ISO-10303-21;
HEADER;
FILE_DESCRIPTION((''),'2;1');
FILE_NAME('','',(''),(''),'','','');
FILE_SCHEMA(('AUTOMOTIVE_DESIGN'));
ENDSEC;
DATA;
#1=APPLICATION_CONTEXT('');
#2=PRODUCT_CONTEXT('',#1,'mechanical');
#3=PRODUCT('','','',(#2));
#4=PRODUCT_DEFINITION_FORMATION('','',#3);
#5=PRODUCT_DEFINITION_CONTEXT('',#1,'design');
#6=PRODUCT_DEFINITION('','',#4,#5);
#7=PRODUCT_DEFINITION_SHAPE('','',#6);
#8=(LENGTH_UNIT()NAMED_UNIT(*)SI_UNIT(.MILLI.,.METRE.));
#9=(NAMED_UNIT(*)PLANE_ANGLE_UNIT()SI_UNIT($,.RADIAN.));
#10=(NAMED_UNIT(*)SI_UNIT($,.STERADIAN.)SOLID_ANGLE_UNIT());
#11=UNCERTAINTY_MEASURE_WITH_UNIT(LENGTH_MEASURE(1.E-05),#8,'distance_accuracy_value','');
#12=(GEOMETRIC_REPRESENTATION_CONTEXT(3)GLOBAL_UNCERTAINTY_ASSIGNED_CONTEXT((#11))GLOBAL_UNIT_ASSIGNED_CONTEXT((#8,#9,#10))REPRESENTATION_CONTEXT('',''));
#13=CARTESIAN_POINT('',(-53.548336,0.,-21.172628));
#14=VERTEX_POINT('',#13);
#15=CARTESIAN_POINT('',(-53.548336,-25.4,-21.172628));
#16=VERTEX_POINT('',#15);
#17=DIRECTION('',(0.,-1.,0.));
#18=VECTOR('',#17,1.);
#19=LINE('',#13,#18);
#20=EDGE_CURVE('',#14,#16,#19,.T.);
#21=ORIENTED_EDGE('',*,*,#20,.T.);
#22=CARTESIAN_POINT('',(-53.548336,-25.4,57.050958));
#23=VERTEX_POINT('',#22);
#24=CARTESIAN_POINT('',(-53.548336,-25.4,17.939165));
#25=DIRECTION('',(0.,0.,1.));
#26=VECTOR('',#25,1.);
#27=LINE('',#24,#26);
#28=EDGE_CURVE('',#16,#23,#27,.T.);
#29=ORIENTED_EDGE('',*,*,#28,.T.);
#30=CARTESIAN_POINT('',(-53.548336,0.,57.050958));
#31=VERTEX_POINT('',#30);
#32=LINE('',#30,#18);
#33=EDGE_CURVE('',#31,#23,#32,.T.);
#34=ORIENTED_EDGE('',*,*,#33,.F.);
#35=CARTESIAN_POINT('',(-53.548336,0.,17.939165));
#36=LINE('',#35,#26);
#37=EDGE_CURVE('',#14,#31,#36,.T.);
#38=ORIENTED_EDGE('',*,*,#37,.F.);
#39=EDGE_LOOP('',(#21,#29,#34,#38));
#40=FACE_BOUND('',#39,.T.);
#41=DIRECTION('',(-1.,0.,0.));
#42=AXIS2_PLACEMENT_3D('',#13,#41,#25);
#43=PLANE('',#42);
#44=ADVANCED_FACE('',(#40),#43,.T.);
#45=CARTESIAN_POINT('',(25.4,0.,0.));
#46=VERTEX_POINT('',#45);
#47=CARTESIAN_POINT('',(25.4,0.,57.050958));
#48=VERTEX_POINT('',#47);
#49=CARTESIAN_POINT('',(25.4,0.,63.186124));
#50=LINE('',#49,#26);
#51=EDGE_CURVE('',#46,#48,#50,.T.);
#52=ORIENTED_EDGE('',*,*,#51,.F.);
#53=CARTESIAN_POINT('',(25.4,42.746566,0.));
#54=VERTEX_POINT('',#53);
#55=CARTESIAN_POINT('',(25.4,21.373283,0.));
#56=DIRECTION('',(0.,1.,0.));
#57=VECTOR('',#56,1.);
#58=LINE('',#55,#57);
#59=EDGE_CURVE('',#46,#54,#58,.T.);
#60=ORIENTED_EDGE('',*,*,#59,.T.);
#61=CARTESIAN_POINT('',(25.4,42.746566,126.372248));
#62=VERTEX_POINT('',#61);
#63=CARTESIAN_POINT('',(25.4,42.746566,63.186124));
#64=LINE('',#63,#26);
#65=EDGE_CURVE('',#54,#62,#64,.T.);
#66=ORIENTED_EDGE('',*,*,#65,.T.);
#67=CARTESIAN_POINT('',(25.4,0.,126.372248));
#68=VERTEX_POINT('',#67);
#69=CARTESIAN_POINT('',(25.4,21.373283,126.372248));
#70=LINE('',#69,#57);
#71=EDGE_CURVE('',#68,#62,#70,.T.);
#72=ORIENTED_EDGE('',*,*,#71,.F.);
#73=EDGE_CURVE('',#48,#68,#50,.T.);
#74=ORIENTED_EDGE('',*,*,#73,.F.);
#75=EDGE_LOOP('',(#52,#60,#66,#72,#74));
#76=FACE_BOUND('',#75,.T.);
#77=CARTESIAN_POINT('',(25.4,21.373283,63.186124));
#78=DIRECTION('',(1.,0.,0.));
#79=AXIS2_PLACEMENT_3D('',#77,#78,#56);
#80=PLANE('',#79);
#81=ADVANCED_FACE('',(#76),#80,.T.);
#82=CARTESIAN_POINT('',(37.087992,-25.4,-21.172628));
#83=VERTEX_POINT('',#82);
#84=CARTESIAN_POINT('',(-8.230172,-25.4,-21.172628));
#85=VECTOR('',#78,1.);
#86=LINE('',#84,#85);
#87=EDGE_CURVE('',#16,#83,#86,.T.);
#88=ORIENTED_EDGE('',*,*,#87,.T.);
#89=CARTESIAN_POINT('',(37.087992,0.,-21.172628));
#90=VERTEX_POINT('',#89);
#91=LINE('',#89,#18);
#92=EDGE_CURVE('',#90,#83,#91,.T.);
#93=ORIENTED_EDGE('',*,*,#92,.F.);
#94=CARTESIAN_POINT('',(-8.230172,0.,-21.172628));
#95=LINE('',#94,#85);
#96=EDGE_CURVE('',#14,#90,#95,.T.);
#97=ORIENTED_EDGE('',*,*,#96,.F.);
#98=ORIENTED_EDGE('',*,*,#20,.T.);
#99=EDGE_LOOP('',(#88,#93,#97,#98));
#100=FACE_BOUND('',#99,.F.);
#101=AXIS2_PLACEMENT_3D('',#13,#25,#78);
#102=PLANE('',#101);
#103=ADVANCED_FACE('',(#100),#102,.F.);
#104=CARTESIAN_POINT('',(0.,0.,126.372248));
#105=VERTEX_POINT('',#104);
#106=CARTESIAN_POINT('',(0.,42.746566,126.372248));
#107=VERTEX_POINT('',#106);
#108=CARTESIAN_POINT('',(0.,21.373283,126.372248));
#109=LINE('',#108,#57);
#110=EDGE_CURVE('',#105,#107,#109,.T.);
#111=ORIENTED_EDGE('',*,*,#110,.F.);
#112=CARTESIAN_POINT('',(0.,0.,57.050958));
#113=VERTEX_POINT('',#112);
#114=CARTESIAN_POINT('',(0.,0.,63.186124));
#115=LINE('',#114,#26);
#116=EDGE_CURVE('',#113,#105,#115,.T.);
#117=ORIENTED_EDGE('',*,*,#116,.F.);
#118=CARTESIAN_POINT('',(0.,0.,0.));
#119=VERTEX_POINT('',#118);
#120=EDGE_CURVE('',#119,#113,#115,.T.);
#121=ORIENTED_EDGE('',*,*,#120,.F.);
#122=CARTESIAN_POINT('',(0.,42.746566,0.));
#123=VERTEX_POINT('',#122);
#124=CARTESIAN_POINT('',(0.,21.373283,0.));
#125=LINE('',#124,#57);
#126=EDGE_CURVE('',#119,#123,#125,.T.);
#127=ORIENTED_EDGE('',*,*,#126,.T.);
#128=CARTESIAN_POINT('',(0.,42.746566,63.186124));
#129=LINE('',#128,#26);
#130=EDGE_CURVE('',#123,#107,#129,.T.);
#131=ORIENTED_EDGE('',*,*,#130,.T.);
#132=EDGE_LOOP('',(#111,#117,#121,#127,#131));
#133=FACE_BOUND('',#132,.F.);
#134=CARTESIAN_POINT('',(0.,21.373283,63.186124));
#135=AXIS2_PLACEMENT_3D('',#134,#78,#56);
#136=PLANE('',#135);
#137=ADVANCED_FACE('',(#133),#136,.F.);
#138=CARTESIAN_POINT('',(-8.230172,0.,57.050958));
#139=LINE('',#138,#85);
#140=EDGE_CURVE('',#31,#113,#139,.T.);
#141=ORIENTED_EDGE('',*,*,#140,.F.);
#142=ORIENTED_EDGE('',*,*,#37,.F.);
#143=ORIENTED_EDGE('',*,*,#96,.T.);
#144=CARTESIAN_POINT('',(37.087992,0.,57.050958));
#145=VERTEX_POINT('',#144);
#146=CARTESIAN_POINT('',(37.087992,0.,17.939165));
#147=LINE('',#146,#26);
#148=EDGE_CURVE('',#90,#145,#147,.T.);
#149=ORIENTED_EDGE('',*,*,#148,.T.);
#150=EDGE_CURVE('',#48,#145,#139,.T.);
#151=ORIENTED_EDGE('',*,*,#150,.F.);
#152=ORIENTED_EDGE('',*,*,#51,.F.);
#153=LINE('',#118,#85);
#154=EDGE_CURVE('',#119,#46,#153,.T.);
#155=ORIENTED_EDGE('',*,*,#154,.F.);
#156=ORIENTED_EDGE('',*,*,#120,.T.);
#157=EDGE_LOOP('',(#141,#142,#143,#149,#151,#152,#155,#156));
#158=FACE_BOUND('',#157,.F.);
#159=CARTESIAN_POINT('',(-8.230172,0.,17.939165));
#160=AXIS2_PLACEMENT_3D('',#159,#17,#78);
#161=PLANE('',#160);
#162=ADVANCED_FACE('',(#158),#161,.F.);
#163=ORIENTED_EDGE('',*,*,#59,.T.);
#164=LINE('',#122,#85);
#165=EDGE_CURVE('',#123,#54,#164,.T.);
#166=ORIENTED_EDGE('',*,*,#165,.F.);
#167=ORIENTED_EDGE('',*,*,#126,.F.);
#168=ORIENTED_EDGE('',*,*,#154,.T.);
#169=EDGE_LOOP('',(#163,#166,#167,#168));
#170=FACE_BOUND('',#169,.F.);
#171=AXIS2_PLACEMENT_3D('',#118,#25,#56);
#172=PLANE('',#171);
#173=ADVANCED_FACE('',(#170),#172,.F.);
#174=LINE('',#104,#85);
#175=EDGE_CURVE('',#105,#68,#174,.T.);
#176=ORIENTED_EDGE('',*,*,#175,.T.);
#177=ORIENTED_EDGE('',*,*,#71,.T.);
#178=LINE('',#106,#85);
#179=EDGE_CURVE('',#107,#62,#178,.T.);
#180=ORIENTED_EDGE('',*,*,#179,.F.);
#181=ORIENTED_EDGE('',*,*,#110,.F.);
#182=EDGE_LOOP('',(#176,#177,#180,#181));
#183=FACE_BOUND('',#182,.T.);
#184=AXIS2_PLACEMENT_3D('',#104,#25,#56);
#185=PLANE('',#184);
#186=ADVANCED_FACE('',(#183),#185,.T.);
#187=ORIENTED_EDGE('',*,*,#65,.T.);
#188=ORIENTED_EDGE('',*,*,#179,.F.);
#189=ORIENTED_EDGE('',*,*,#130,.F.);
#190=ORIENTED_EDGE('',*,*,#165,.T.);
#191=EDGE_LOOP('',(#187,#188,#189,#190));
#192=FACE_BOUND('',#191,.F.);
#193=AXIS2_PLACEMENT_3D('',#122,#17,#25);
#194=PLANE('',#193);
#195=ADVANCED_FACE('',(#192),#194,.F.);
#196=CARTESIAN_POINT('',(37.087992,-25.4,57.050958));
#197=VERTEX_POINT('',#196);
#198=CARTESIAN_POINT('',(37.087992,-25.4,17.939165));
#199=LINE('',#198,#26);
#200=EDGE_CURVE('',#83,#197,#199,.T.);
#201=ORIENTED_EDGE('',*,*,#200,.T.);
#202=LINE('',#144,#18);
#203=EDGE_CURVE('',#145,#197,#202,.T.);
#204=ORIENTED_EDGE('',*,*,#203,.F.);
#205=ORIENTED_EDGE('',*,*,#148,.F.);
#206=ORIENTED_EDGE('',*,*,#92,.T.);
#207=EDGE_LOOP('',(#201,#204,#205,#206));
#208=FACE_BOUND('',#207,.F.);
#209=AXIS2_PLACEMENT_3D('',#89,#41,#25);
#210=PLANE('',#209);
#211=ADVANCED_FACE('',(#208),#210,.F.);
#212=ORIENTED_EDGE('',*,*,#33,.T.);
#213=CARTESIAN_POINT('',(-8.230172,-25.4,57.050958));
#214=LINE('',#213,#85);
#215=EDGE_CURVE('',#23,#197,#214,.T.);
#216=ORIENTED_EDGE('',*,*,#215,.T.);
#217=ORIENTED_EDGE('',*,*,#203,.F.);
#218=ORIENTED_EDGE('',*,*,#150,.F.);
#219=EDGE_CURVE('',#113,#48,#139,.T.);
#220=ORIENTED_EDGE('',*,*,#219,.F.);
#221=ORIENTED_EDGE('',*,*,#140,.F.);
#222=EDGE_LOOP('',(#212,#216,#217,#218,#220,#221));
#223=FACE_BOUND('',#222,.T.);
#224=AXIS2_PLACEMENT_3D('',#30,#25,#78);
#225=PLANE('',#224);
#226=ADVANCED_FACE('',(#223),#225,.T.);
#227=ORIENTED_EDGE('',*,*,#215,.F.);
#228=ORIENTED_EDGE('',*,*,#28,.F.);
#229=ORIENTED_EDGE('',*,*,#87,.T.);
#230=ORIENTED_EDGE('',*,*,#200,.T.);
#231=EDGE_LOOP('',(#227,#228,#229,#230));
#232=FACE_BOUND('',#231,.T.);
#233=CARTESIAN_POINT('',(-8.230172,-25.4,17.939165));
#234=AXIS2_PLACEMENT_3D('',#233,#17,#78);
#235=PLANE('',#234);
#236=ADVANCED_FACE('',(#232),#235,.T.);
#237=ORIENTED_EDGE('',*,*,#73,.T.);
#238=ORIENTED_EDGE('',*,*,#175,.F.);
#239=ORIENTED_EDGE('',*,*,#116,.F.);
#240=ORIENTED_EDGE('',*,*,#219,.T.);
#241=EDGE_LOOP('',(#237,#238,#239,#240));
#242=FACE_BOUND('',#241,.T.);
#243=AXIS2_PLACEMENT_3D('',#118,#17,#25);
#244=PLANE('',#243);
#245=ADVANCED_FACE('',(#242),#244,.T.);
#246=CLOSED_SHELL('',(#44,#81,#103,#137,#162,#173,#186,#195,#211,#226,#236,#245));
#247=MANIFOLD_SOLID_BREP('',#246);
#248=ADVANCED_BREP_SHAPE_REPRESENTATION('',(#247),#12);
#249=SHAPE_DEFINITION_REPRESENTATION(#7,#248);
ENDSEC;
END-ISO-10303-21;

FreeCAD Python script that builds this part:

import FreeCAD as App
import Part
import Sketcher
Q = App.Units.Quantity

doc = App.newDocument("Part")
body = doc.addObject("PartDesign::Body", "Body")

# Sketch on XZ plane
sketch1 = body.newObject("Sketcher::SketchObject", "Sketch")
sketch1.AttachmentSupport = (doc.getObject("XZ_Plane"), [""])
sketch1.MapMode = "FlatFace"
sketch1.addGeometry([
    Part.LineSegment(App.Vector(-53.548336, 57.050958, 0), App.Vector(-53.548336, -21.172628, 0)),
    Part.LineSegment(App.Vector(-53.548336, -21.172628, 0), App.Vector(37.087992, -21.172628, 0)),
    Part.LineSegment(App.Vector(37.087992, -21.172628, 0), App.Vector(37.087992, 57.050958, 0)),
    Part.LineSegment(App.Vector(37.087992, 57.050958, 0), App.Vector(-53.548336, 57.050958, 0)),
], False)
sketch1.addConstraint([
    Sketcher.Constraint("Coincident", 0, 2, 1, 1),
    Sketcher.Constraint("Coincident", 1, 2, 2, 1),
    Sketcher.Constraint("Coincident", 2, 2, 3, 1),
    Sketcher.Constraint("Coincident", 3, 2, 0, 1),
    Sketcher.Constraint("Vertical", 0),
    Sketcher.Constraint("Horizontal", 1),
    Sketcher.Constraint("Vertical", 2),
    Sketcher.Constraint("Horizontal", 3),
    Sketcher.Constraint("DistanceX", 1, 1, 1, 2, Q("90.636328 mm")),
    Sketcher.Constraint("DistanceY", 0, 2, 0, 1, Q("78.223586 mm")),
    Sketcher.Constraint("DistanceX", 0, 2, -1, 1, Q("53.548336 mm")),
    Sketcher.Constraint("DistanceY", 0, 2, -1, 1, Q("21.172628 mm")),
])
pad1 = body.newObject("PartDesign::Pad", "Pad")
pad1.Profile = sketch1
pad1.Length = Q("1 in")

# Sketch on YZ plane
sketch2 = body.newObject("Sketcher::SketchObject", "Sketch001")
sketch2.AttachmentSupport = (doc.getObject("YZ_Plane"), [""])
sketch2.MapMode = "FlatFace"
sketch2.addGeometry([
    Part.LineSegment(App.Vector(0, 126.372248, 0), App.Vector(0, 0, 0)),
    Part.LineSegment(App.Vector(0, 0, 0), App.Vector(42.746566, 0, 0)),
    Part.LineSegment(App.Vector(42.746566, 0, 0), App.Vector(42.746566, 126.372248, 0)),
    Part.LineSegment(App.Vector(42.746566, 126.372248, 0), App.Vector(0, 126.372248, 0)),
], False)
sketch2.addConstraint([
    Sketcher.Constraint("Coincident", 0, 2, 1, 1),
    Sketcher.Constraint("Coincident", 1, 2, 2, 1),
    Sketcher.Constraint("Coincident", 2, 2, 3, 1),
    Sketcher.Constraint("Coincident", 3, 2, 0, 1),
    Sketcher.Constraint("Vertical", 0),
    Sketcher.Constraint("Horizontal", 1),
    Sketcher.Constraint("Vertical", 2),
    Sketcher.Constraint("Horizontal", 3),
    Sketcher.Constraint("Coincident", 0, 2, -1, 1),
    Sketcher.Constraint("DistanceY", 0, 2, 0, 1, Q("126.372248 mm")),
    Sketcher.Constraint("DistanceX", 1, 1, 1, 2, Q("42.746566 mm")),
])
pad2 = body.newObject("PartDesign::Pad", "Pad001")
pad2.Profile = sketch2
pad2.Length = Q("1 in")

doc.recompute()
